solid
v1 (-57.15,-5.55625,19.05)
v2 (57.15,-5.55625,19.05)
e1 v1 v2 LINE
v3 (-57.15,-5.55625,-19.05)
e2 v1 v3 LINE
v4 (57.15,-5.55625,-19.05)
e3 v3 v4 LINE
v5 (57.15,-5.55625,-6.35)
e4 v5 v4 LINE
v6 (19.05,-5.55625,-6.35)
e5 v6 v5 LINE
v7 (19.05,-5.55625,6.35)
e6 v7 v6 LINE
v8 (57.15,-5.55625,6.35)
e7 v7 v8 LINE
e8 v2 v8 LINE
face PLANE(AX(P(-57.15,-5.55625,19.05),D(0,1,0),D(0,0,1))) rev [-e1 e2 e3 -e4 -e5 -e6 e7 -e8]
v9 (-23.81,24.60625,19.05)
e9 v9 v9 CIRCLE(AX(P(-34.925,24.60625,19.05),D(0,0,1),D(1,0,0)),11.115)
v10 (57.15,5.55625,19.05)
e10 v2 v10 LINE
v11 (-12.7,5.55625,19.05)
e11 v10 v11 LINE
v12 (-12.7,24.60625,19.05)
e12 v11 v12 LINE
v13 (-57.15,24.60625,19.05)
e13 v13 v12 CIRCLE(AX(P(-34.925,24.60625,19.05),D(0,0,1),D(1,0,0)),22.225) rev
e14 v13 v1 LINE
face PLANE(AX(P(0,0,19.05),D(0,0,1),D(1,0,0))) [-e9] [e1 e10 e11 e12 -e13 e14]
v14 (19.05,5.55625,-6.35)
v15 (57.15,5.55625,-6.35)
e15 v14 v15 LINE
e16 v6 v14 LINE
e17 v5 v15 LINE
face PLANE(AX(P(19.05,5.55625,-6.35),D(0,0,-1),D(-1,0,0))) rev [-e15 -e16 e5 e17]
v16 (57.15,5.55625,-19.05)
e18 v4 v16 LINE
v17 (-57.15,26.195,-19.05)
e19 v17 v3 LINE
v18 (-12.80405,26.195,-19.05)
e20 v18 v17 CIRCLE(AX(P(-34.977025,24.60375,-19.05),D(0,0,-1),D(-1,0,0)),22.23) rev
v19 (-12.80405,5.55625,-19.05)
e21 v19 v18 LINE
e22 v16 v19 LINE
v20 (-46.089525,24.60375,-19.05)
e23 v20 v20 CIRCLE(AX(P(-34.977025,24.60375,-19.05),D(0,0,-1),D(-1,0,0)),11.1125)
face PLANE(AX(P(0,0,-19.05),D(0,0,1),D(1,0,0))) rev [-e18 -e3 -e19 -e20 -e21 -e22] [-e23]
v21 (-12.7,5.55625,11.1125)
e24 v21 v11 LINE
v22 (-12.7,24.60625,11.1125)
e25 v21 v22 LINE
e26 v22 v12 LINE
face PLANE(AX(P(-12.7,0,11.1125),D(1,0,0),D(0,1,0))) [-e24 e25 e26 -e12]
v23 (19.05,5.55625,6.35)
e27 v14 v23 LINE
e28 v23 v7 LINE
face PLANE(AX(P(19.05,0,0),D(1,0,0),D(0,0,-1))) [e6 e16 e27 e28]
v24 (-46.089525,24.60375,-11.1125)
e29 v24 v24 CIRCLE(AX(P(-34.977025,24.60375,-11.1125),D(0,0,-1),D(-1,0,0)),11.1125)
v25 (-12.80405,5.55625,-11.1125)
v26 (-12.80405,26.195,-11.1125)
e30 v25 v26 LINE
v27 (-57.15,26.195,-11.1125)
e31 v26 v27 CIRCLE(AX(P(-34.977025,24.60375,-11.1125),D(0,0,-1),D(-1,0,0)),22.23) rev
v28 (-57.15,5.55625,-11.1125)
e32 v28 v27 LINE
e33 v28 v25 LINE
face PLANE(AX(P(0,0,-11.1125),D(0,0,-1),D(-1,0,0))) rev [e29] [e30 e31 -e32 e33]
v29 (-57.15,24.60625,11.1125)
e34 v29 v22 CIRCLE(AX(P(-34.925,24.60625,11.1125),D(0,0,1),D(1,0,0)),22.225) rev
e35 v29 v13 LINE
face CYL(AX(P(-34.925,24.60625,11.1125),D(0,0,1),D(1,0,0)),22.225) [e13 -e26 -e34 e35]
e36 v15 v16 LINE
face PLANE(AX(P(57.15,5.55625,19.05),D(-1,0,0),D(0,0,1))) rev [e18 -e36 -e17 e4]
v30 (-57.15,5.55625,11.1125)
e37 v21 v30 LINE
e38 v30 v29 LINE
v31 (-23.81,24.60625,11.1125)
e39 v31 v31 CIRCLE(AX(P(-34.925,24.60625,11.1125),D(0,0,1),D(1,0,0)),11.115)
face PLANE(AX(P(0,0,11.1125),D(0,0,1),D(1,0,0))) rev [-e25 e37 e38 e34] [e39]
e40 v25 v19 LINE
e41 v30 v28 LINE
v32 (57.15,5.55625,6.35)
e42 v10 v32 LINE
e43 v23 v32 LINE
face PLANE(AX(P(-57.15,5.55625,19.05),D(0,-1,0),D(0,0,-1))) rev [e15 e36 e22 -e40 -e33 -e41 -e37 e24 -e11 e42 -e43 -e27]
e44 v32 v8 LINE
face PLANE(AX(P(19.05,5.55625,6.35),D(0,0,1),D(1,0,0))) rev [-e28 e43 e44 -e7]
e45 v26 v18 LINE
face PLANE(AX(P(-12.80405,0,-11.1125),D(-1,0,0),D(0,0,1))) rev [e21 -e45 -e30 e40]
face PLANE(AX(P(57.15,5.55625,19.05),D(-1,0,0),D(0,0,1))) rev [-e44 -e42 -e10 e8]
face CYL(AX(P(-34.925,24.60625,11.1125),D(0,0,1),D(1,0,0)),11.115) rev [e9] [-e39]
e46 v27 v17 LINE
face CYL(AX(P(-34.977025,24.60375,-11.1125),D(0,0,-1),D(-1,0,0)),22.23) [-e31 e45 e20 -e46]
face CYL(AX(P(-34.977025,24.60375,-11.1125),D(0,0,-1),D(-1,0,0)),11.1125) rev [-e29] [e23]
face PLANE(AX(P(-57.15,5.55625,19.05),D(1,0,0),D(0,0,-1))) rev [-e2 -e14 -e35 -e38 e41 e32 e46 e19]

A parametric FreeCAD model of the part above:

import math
import FreeCAD as App
import Part
import Sketcher
from FreeCAD import Vector
Q = App.Units.Quantity


def add_polygon(sketch, points):
    """Adds a closed chain of lines whose ends are joined by coincident constraints."""
    first, n = sketch.GeometryCount, len(points)
    for a, b in zip(points, points[1:] + points[:1]):
        sketch.addGeometry(Part.LineSegment(App.Vector(*a, 0), App.Vector(*b, 0)), False)
    for i in range(n):
        sketch.addConstraint(Sketcher.Constraint("Coincident", first + i, 2, first + (i + 1) % n, 1))

doc = App.newDocument("Part")
params = doc.addObject("Spreadsheet::Sheet", "Params")
for row, (alias, value) in enumerate([
    ("sketch1_width", "4.5 in"),
    ("sketch1_height", "0.4375 in"),
    ("pad1_length", "1.5 in"),
    ("sketch2_height", "0.5 in"),
    ("sketch2_width", "0.4375 in"),
    ("pocket1_length", "1.5 in"),
    ("sketch3_radius", "0.875 in"),
    ("sketch3_height", "0.75 in"),
    ("pad2_length", "0.3125 in"),
    ("sketch4_diameter", "0.875 in"),
    ("pad3_length", "0.3125 in"),
], start=1):
    params.set(f"A{row}", alias)
    params.set(f"B{row}", "=" + value)
    params.setAlias(f"B{row}", alias)

body = doc.addObject("PartDesign::Body", "Body")

# Sketch on XY plane
sketch1 = body.newObject("Sketcher::SketchObject", "Sketch")
sketch1.AttachmentSupport = (doc.getObject("XY_Plane"), [""])
sketch1.MapMode = "FlatFace"
add_polygon(sketch1, [(-57.15, 5.55625), (-57.15, -5.55625), (57.15, -5.55625), (57.15, 5.55625)])  # lines 0-3
sketch1.addConstraint(Sketcher.Constraint("Vertical", 0))
sketch1.addConstraint(Sketcher.Constraint("Horizontal", 1))
sketch1.addConstraint(Sketcher.Constraint("Vertical", 2))
sketch1.addConstraint(Sketcher.Constraint("Horizontal", 3))
sketch1.addConstraint(Sketcher.Constraint("Symmetric", 0, 2, 2, 2, -1, 1))
sketch1.addConstraint(Sketcher.Constraint("DistanceX", 1, 1, 1, 2, Q("4.5 in")))
sketch1.addConstraint(Sketcher.Constraint("DistanceY", 0, 2, 0, 1, Q("0.4375 in")))
sketch1.setExpression("Constraints[9]", "Params.sketch1_width")
sketch1.setExpression("Constraints[10]", "Params.sketch1_height")
pad1 = body.newObject("PartDesign::Pad", "Pad")
pad1.Profile = sketch1
pad1.setExpression("Length", "Params.pad1_length")
pad1.Midplane = True

# Sketch on YZ plane
sketch2 = body.newObject("Sketcher::SketchObject", "Sketch001")
sketch2.AttachmentSupport = (doc.getObject("YZ_Plane"), [""])
sketch2.MapMode = "FlatFace"
sketch2.AttachmentOffset = App.Placement(Vector(0, 0, 2.25 * 25.4), App.Rotation())
add_polygon(sketch2, [(5.55625, 6.35), (-5.55625, 6.35), (-5.55625, -6.35), (5.55625, -6.35)])  # lines 0-3
sketch2.addConstraint(Sketcher.Constraint("Horizontal", 0))
sketch2.addConstraint(Sketcher.Constraint("Vertical", 1))
sketch2.addConstraint(Sketcher.Constraint("Horizontal", 2))
sketch2.addConstraint(Sketcher.Constraint("Vertical", 3))
sketch2.addConstraint(Sketcher.Constraint("Symmetric", 0, 2, 2, 2, -1, 1))
sketch2.addConstraint(Sketcher.Constraint("DistanceY", 1, 2, 1, 1, Q("0.5 in")))
sketch2.addConstraint(Sketcher.Constraint("DistanceX", 0, 2, 0, 1, Q("0.4375 in")))
sketch2.setExpression("Constraints[9]", "Params.sketch2_height")
sketch2.setExpression("Constraints[10]", "Params.sketch2_width")
pocket1 = body.newObject("PartDesign::Pocket", "Pocket")
pocket1.Profile = sketch2
pocket1.setExpression("Length", "Params.pocket1_length")

# Sketch on XY plane
sketch3 = body.newObject("Sketcher::SketchObject", "Sketch002")
sketch3.AttachmentSupport = (doc.getObject("XY_Plane"), [""])
sketch3.MapMode = "FlatFace"
sketch3.AttachmentOffset = App.Placement(Vector(0, 0, 0.75 * 25.4), App.Rotation())
sketch3.addGeometry(Part.LineSegment(Vector(-57.15, 24.60625, 0), Vector(-57.15, 5.55625, 0)), False)
sketch3.addGeometry(Part.LineSegment(Vector(-57.15, 5.55625, 0), Vector(-12.7, 5.55625, 0)), False)
sketch3.addGeometry(Part.LineSegment(Vector(-12.7, 5.55625, 0), Vector(-12.7, 24.60625, 0)), False)
sketch3.addGeometry(Part.ArcOfCircle(Part.Circle(Vector(-34.925, 24.60625, 0), Vector(0, 0, 1), 22.225), math.radians(0), math.radians(90)), False)
sketch3.addGeometry(Part.ArcOfCircle(Part.Circle(Vector(-34.925, 24.60625, 0), Vector(0, 0, 1), 22.225), math.radians(90), math.radians(180)), False)
sketch3.addGeometry(Part.Circle(Vector(-34.925, 24.60625, 0), Vector(0, 0, 1), 11.115), False)
sketch3.addConstraint(Sketcher.Constraint("Coincident", 0, 2, 1, 1))
sketch3.addConstraint(Sketcher.Constraint("Coincident", 1, 2, 2, 1))
sketch3.addConstraint(Sketcher.Constraint("Tangent", 2, 2, 3, 1))
sketch3.addConstraint(Sketcher.Constraint("Tangent", 3, 2, 4, 1))
sketch3.addConstraint(Sketcher.Constraint("Tangent", 4, 2, 0, 1))
sketch3.addConstraint(Sketcher.Constraint("Vertical", 0))
sketch3.addConstraint(Sketcher.Constraint("Horizontal", 1))
sketch3.addConstraint(Sketcher.Constraint("Vertical", 2))
sketch3.addConstraint(Sketcher.Constraint("Coincident", 5, 3, 3, 3))
sketch3.addConstraint(Sketcher.Constraint("Equal", 3, 4))
sketch3.addConstraint(Sketcher.Constraint("Vertical", 5, 3, 3, 2))
sketch3.addConstraint(Sketcher.Constraint("Radius", 3, Q("0.875 in")))
sketch3.addConstraint(Sketcher.Constraint("DistanceY", 0, 2, 0, 1, Q("0.75 in")))
sketch3.addConstraint(Sketcher.Constraint("DistanceX", 1, 2, -1, 1, Q("0.5 in")))
sketch3.addConstraint(Sketcher.Constraint("Diameter", 5, Q("22.23 mm")))
sketch3.addConstraint(Sketcher.Constraint("DistanceY", -1, 1, 3, 3, Q("0.96875 in")))
sketch3.setExpression("Constraints[11]", "Params.sketch3_radius")
sketch3.setExpression("Constraints[12]", "Params.sketch3_height")
pad2 = body.newObject("PartDesign::Pad", "Pad001")
pad2.Profile = sketch3
pad2.setExpression("Length", "Params.pad2_length")
pad2.Reversed = True

# Sketch on XY plane
sketch4 = body.newObject("Sketcher::SketchObject", "Sketch003")
sketch4.AttachmentSupport = (doc.getObject("XY_Plane"), [""])
sketch4.MapMode = "FlatFace"
sketch4.AttachmentOffset = App.Placement(Vector(0, 0, -0.75 * 25.4), App.Rotation())
sketch4.addGeometry(Part.LineSegment(Vector(-12.80405, 5.55625, 0), Vector(-57.15, 5.55625, 0)), False)
sketch4.addGeometry(Part.LineSegment(Vector(-57.15, 5.55625, 0), Vector(-57.15, 26.195, 0)), False)
sketch4.addGeometry(Part.ArcOfCircle(Part.Circle(Vector(-34.977025, 24.60375, 0), Vector(0, 0, 1), 22.23), math.radians(90), math.radians(175.895189)), False)
sketch4.addGeometry(Part.ArcOfCircle(Part.Circle(Vector(-34.977025, 24.60375, 0), Vector(0, 0, 1), 22.23), math.radians(4.104811), math.radians(90)), False)
sketch4.addGeometry(Part.LineSegment(Vector(-12.80405, 26.195, 0), Vector(-12.80405, 5.55625, 0)), False)
sketch4.addGeometry(Part.Circle(Vector(-34.977025, 24.60375, 0), Vector(0, 0, 1), 11.1125), False)
sketch4.addConstraint(Sketcher.Constraint("Coincident", 0, 2, 1, 1))
sketch4.addConstraint(Sketcher.Constraint("Coincident", 1, 2, 2, 2))
sketch4.addConstraint(Sketcher.Constraint("Tangent", 2, 1, 3, 2))
sketch4.addConstraint(Sketcher.Constraint("Coincident", 3, 1, 4, 1))
sketch4.addConstraint(Sketcher.Constraint("Coincident", 4, 2, 0, 1))
sketch4.addConstraint(Sketcher.Constraint("Horizontal", 0))
sketch4.addConstraint(Sketcher.Constraint("Vertical", 1))
sketch4.addConstraint(Sketcher.Constraint("Vertical", 4))
sketch4.addConstraint(Sketcher.Constraint("Coincident", 5, 3, 2, 3))
sketch4.addConstraint(Sketcher.Constraint("Equal", 2, 3))
sketch4.addConstraint(Sketcher.Constraint("Horizontal", 1, 2, 3, 1))
sketch4.addConstraint(Sketcher.Constraint("Vertical", 5, 3, 2, 1))
sketch4.addConstraint(Sketcher.Constraint("Diameter", 5, Q("0.875 in")))
sketch4.addConstraint(Sketcher.Constraint("DistanceX", 0, 2, -1, 1, Q("2.25 in")))
sketch4.addConstraint(Sketcher.Constraint("Radius", 2, Q("22.23 mm")))
sketch4.addConstraint(Sketcher.Constraint("DistanceY", -1, 1, 0, 2, Q("0.21875 in")))
sketch4.addConstraint(Sketcher.Constraint("DistanceX", 0, 2, 0, 1, Q("44.34595 mm")))
sketch4.addConstraint(Sketcher.Constraint("DistanceY", 1, 1, 1, 2, Q("20.63875 mm")))
sketch4.setExpression("Constraints[12]", "Params.sketch4_diameter")
pad3 = body.newObject("PartDesign::Pad", "Pad002")
pad3.Profile = sketch4
pad3.setExpression("Length", "Params.pad3_length")

doc.recompute()
